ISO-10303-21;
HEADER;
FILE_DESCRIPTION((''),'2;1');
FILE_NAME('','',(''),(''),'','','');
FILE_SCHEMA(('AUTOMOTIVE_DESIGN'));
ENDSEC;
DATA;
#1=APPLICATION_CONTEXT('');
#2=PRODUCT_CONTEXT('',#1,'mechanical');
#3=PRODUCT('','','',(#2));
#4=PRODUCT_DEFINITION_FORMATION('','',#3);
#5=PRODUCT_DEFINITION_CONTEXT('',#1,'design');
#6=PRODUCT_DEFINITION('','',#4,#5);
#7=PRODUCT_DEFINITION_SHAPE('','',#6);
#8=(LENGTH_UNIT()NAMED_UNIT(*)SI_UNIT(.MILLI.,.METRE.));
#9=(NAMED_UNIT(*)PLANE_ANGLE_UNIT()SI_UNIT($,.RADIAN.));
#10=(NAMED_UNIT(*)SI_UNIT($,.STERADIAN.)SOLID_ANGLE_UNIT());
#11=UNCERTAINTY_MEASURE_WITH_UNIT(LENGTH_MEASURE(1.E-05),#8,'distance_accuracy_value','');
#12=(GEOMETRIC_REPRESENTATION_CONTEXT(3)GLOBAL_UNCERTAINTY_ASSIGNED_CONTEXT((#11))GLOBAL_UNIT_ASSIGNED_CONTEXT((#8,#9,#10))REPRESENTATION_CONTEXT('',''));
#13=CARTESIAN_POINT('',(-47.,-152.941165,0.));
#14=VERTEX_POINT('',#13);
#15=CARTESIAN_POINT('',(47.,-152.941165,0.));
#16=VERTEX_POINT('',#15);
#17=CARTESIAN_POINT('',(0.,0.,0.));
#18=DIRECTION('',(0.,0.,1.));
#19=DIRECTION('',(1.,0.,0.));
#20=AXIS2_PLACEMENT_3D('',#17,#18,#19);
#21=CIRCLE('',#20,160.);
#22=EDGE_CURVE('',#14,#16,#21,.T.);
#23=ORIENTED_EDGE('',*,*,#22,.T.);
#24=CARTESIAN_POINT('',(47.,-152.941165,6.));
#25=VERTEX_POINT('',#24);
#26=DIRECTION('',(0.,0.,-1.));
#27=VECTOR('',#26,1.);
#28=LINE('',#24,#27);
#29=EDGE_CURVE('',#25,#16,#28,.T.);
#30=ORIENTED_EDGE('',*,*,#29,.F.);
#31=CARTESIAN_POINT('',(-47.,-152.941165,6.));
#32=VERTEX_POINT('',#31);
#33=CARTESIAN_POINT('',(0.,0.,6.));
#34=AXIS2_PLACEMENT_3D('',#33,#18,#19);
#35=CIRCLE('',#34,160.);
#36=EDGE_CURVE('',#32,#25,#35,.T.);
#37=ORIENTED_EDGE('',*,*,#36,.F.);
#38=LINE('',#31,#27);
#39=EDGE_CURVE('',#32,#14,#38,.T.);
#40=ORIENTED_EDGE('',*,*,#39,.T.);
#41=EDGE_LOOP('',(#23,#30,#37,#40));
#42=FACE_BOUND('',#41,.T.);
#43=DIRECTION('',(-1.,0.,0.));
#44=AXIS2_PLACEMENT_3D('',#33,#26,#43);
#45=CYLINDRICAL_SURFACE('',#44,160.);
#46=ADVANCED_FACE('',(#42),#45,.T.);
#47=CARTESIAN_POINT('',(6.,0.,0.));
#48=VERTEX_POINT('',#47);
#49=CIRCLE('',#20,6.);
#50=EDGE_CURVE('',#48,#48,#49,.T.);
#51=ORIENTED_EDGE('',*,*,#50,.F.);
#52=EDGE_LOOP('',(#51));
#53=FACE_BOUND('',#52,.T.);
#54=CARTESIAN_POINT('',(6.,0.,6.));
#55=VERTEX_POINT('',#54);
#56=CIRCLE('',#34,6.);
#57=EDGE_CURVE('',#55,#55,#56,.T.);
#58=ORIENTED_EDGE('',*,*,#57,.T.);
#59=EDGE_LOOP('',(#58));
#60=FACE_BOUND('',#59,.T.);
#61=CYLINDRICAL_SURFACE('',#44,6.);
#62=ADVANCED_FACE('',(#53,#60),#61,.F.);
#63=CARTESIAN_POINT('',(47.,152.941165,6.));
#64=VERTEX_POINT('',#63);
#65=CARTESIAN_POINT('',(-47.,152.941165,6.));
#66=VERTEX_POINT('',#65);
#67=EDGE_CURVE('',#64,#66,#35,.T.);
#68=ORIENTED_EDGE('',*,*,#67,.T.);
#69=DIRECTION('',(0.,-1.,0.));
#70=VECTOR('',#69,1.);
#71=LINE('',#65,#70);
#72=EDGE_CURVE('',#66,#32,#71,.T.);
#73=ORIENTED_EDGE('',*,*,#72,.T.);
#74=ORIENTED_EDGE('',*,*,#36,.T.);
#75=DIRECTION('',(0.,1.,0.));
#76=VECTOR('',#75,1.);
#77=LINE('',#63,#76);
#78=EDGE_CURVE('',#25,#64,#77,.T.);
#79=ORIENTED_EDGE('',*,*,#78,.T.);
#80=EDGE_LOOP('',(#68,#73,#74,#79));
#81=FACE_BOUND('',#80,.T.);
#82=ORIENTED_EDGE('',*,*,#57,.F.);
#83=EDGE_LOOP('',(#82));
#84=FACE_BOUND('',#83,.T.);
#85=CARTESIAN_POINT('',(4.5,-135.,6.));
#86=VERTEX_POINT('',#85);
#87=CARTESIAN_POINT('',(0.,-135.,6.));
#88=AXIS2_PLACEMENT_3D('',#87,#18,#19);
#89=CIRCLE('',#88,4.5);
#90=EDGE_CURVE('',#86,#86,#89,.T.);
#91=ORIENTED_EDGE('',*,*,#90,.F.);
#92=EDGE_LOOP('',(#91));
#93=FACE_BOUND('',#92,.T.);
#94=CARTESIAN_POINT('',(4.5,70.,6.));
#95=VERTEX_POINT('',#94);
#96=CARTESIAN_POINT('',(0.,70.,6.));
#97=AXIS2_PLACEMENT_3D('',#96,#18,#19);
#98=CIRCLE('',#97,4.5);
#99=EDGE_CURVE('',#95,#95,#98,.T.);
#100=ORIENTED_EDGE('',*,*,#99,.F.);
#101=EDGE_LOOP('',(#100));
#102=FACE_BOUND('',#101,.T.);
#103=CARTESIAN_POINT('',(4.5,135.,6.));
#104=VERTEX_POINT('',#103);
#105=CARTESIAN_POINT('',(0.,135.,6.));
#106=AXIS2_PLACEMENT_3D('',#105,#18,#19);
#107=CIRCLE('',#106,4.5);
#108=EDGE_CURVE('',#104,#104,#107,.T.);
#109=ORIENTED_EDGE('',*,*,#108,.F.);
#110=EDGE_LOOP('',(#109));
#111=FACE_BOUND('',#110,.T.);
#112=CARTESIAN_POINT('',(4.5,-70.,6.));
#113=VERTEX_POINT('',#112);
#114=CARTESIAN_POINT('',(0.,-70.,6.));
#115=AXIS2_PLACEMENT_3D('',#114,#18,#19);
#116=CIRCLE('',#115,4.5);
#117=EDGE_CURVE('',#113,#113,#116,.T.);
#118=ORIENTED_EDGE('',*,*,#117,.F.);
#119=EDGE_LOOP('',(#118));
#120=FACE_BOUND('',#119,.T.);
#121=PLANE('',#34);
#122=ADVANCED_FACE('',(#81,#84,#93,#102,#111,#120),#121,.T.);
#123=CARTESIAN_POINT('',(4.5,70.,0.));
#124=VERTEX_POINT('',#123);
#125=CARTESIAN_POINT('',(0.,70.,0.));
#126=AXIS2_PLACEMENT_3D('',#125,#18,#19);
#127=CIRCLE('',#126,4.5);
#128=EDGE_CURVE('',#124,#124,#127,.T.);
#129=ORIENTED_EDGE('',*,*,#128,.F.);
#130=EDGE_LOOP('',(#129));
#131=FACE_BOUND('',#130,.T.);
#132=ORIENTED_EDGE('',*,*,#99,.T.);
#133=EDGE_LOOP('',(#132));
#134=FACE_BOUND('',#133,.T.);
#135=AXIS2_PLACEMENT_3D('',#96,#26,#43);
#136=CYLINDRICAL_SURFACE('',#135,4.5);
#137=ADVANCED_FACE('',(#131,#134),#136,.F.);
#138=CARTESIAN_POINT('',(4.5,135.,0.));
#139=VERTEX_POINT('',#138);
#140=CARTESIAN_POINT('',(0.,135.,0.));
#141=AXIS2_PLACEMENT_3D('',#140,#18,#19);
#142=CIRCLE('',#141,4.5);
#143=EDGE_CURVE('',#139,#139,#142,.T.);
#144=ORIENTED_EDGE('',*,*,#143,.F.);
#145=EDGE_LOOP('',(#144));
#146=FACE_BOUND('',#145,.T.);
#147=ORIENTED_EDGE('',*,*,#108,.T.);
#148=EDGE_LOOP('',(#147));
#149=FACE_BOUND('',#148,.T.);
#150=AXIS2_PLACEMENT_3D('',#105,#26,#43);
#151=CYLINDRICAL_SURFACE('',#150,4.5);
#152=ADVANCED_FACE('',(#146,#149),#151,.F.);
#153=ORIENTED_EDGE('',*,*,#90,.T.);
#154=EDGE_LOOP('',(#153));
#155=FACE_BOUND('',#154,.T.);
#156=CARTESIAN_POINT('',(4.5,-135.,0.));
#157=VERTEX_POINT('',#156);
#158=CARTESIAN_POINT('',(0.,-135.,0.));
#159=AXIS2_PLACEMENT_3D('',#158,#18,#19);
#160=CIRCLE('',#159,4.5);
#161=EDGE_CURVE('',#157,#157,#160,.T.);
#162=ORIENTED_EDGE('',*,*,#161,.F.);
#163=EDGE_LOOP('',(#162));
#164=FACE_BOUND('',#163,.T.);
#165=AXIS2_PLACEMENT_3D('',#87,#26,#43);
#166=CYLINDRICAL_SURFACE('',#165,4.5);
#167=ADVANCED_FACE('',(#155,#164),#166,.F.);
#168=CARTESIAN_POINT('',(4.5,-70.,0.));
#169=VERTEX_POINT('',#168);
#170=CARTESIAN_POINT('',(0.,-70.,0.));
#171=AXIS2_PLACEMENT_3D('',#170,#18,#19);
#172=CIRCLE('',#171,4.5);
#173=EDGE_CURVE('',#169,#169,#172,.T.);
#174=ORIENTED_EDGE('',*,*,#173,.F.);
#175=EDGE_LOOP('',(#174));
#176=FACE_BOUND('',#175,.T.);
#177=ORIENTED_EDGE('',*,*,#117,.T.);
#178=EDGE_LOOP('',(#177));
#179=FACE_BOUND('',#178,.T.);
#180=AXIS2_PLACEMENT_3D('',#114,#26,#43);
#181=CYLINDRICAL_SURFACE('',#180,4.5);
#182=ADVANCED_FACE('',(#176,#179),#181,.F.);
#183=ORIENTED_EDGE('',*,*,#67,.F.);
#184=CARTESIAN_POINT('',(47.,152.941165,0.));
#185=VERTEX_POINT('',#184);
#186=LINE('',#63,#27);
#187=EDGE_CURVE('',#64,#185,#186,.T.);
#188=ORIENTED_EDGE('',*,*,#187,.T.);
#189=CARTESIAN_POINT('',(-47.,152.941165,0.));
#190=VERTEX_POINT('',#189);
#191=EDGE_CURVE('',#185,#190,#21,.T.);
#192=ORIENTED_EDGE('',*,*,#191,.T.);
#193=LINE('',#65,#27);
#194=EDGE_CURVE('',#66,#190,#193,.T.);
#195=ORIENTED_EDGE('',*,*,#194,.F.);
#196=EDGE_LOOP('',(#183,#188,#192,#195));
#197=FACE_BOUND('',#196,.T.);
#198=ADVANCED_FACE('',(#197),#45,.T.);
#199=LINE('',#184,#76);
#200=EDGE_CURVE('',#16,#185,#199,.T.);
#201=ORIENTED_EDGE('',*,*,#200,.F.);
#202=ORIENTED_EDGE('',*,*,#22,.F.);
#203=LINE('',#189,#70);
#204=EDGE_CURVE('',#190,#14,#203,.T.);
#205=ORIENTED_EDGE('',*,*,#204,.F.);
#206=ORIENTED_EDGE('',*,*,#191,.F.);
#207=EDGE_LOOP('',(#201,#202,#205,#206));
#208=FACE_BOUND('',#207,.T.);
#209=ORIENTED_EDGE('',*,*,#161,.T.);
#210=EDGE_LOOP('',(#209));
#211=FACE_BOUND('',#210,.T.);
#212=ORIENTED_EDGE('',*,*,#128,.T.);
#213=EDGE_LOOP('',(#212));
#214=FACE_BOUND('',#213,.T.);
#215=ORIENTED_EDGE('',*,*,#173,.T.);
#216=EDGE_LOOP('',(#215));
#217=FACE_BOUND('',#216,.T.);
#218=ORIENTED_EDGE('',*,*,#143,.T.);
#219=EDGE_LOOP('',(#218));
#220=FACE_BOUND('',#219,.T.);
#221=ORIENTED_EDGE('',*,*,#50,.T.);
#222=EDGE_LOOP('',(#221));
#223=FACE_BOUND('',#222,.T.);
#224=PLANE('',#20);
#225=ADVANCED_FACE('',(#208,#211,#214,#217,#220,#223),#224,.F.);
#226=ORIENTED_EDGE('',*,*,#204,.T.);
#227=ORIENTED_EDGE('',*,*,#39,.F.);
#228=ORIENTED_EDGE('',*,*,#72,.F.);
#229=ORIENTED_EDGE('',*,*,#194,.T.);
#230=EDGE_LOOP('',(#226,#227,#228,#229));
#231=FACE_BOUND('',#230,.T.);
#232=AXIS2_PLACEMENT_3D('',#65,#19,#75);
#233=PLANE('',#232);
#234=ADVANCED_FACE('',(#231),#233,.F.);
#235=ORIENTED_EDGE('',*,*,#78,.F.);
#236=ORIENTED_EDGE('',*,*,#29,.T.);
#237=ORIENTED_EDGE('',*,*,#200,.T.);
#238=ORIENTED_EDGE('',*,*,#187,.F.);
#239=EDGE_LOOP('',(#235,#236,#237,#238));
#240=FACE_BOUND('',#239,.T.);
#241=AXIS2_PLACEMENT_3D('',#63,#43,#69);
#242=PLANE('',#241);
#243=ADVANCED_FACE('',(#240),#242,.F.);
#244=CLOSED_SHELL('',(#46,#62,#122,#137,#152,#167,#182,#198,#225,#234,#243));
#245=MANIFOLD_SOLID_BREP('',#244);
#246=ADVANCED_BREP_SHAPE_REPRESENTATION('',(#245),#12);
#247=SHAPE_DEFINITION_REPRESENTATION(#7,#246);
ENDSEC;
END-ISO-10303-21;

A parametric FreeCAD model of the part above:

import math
import FreeCAD as App
import Part
import Sketcher
Q = App.Units.Quantity

doc = App.newDocument("Part")
params = doc.addObject("Spreadsheet::Sheet", "Params")
for row, (alias, value) in enumerate([
    ("sketch1_diameter", "9 mm"),
    ("sketch1_diameter2", "12 mm"),
    ("sketch1_radius", "160 mm"),
    ("pad1_length", "6 mm"),
], start=1):
    params.set(f"A{row}", alias)
    params.set(f"B{row}", "=" + value)
    params.setAlias(f"B{row}", alias)

body = doc.addObject("PartDesign::Body", "Body")

sketch1 = body.newObject("Sketcher::SketchObject", "Sketch")
sketch1.AttachmentSupport = (doc.getObject("XY_Plane"), [""])
sketch1.MapMode = "FlatFace"
sketch1.addGeometry(Part.LineSegment(App.Vector(-47, 152.941165, 0), App.Vector(-47, -152.941165, 0)), False)
sketch1.addGeometry(Part.ArcOfCircle(Part.Circle(App.Vector(0, 0, 0), App.Vector(0, 0, 1), 160), math.radians(-107.082597), math.radians(-72.917403)), False)
sketch1.addGeometry(Part.LineSegment(App.Vector(47, -152.941165, 0), App.Vector(47, 152.941165, 0)), False)
sketch1.addGeometry(Part.ArcOfCircle(Part.Circle(App.Vector(0, 0, 0), App.Vector(0, 0, 1), 160), math.radians(72.917403), math.radians(107.082597)), False)
sketch1.addGeometry(Part.Circle(App.Vector(0, -135, 0), App.Vector(0, 0, 1), 4.5), False)
sketch1.addGeometry(Part.Circle(App.Vector(0, -70, 0), App.Vector(0, 0, 1), 4.5), False)
sketch1.addGeometry(Part.Circle(App.Vector(0, 0, 0), App.Vector(0, 0, 1), 6), False)
sketch1.addGeometry(Part.Circle(App.Vector(0, 70, 0), App.Vector(0, 0, 1), 4.5), False)
sketch1.addGeometry(Part.Circle(App.Vector(0, 135, 0), App.Vector(0, 0, 1), 4.5), False)
sketch1.addConstraint(Sketcher.Constraint("Coincident", 0, 2, 1, 1))
sketch1.addConstraint(Sketcher.Constraint("Coincident", 1, 2, 2, 1))
sketch1.addConstraint(Sketcher.Constraint("Coincident", 2, 2, 3, 1))
sketch1.addConstraint(Sketcher.Constraint("Coincident", 3, 2, 0, 1))
sketch1.addConstraint(Sketcher.Constraint("Vertical", 0))
sketch1.addConstraint(Sketcher.Constraint("Vertical", 2))
sketch1.addConstraint(Sketcher.Constraint("Coincident", 1, 3, -1, 1))
sketch1.addConstraint(Sketcher.Constraint("Coincident", 3, 3, -1, 1))
sketch1.addConstraint(Sketcher.Constraint("Coincident", 6, 3, -1, 1))
sketch1.addConstraint(Sketcher.Constraint("Equal", 1, 3))
sketch1.addConstraint(Sketcher.Constraint("Equal", 4, 5))
sketch1.addConstraint(Sketcher.Constraint("Equal", 5, 7))
sketch1.addConstraint(Sketcher.Constraint("Equal", 7, 8))
sketch1.addConstraint(Sketcher.Constraint("Symmetric", 5, 3, 7, 3, -1, 1))
sketch1.addConstraint(Sketcher.Constraint("Symmetric", 4, 3, 8, 3, -1, 1))
sketch1.addConstraint(Sketcher.Constraint("PointOnObject", 4, 3, -2))
sketch1.addConstraint(Sketcher.Constraint("PointOnObject", 5, 3, -2))
sketch1.addConstraint(Sketcher.Constraint("Horizontal", 0, 2, 1, 2))
sketch1.addConstraint(Sketcher.Constraint("Diameter", 4, Q("9 mm")))
sketch1.addConstraint(Sketcher.Constraint("Diameter", 6, Q("12 mm")))
sketch1.addConstraint(Sketcher.Constraint("Radius", 1, Q("160 mm")))
sketch1.addConstraint(Sketcher.Constraint("DistanceY", 4, 3, -1, 1, Q("135 mm")))
sketch1.addConstraint(Sketcher.Constraint("DistanceY", 5, 3, -1, 1, Q("70 mm")))
sketch1.addConstraint(Sketcher.Constraint("DistanceX", 0, 2, -1, 1, Q("47 mm")))
sketch1.setExpression("Constraints[18]", "Params.sketch1_diameter")
sketch1.setExpression("Constraints[19]", "Params.sketch1_diameter2")
sketch1.setExpression("Constraints[20]", "Params.sketch1_radius")
pad1 = body.newObject("PartDesign::Pad", "Pad")
pad1.Profile = sketch1
pad1.setExpression("Length", "Params.pad1_length")

doc.recompute()
